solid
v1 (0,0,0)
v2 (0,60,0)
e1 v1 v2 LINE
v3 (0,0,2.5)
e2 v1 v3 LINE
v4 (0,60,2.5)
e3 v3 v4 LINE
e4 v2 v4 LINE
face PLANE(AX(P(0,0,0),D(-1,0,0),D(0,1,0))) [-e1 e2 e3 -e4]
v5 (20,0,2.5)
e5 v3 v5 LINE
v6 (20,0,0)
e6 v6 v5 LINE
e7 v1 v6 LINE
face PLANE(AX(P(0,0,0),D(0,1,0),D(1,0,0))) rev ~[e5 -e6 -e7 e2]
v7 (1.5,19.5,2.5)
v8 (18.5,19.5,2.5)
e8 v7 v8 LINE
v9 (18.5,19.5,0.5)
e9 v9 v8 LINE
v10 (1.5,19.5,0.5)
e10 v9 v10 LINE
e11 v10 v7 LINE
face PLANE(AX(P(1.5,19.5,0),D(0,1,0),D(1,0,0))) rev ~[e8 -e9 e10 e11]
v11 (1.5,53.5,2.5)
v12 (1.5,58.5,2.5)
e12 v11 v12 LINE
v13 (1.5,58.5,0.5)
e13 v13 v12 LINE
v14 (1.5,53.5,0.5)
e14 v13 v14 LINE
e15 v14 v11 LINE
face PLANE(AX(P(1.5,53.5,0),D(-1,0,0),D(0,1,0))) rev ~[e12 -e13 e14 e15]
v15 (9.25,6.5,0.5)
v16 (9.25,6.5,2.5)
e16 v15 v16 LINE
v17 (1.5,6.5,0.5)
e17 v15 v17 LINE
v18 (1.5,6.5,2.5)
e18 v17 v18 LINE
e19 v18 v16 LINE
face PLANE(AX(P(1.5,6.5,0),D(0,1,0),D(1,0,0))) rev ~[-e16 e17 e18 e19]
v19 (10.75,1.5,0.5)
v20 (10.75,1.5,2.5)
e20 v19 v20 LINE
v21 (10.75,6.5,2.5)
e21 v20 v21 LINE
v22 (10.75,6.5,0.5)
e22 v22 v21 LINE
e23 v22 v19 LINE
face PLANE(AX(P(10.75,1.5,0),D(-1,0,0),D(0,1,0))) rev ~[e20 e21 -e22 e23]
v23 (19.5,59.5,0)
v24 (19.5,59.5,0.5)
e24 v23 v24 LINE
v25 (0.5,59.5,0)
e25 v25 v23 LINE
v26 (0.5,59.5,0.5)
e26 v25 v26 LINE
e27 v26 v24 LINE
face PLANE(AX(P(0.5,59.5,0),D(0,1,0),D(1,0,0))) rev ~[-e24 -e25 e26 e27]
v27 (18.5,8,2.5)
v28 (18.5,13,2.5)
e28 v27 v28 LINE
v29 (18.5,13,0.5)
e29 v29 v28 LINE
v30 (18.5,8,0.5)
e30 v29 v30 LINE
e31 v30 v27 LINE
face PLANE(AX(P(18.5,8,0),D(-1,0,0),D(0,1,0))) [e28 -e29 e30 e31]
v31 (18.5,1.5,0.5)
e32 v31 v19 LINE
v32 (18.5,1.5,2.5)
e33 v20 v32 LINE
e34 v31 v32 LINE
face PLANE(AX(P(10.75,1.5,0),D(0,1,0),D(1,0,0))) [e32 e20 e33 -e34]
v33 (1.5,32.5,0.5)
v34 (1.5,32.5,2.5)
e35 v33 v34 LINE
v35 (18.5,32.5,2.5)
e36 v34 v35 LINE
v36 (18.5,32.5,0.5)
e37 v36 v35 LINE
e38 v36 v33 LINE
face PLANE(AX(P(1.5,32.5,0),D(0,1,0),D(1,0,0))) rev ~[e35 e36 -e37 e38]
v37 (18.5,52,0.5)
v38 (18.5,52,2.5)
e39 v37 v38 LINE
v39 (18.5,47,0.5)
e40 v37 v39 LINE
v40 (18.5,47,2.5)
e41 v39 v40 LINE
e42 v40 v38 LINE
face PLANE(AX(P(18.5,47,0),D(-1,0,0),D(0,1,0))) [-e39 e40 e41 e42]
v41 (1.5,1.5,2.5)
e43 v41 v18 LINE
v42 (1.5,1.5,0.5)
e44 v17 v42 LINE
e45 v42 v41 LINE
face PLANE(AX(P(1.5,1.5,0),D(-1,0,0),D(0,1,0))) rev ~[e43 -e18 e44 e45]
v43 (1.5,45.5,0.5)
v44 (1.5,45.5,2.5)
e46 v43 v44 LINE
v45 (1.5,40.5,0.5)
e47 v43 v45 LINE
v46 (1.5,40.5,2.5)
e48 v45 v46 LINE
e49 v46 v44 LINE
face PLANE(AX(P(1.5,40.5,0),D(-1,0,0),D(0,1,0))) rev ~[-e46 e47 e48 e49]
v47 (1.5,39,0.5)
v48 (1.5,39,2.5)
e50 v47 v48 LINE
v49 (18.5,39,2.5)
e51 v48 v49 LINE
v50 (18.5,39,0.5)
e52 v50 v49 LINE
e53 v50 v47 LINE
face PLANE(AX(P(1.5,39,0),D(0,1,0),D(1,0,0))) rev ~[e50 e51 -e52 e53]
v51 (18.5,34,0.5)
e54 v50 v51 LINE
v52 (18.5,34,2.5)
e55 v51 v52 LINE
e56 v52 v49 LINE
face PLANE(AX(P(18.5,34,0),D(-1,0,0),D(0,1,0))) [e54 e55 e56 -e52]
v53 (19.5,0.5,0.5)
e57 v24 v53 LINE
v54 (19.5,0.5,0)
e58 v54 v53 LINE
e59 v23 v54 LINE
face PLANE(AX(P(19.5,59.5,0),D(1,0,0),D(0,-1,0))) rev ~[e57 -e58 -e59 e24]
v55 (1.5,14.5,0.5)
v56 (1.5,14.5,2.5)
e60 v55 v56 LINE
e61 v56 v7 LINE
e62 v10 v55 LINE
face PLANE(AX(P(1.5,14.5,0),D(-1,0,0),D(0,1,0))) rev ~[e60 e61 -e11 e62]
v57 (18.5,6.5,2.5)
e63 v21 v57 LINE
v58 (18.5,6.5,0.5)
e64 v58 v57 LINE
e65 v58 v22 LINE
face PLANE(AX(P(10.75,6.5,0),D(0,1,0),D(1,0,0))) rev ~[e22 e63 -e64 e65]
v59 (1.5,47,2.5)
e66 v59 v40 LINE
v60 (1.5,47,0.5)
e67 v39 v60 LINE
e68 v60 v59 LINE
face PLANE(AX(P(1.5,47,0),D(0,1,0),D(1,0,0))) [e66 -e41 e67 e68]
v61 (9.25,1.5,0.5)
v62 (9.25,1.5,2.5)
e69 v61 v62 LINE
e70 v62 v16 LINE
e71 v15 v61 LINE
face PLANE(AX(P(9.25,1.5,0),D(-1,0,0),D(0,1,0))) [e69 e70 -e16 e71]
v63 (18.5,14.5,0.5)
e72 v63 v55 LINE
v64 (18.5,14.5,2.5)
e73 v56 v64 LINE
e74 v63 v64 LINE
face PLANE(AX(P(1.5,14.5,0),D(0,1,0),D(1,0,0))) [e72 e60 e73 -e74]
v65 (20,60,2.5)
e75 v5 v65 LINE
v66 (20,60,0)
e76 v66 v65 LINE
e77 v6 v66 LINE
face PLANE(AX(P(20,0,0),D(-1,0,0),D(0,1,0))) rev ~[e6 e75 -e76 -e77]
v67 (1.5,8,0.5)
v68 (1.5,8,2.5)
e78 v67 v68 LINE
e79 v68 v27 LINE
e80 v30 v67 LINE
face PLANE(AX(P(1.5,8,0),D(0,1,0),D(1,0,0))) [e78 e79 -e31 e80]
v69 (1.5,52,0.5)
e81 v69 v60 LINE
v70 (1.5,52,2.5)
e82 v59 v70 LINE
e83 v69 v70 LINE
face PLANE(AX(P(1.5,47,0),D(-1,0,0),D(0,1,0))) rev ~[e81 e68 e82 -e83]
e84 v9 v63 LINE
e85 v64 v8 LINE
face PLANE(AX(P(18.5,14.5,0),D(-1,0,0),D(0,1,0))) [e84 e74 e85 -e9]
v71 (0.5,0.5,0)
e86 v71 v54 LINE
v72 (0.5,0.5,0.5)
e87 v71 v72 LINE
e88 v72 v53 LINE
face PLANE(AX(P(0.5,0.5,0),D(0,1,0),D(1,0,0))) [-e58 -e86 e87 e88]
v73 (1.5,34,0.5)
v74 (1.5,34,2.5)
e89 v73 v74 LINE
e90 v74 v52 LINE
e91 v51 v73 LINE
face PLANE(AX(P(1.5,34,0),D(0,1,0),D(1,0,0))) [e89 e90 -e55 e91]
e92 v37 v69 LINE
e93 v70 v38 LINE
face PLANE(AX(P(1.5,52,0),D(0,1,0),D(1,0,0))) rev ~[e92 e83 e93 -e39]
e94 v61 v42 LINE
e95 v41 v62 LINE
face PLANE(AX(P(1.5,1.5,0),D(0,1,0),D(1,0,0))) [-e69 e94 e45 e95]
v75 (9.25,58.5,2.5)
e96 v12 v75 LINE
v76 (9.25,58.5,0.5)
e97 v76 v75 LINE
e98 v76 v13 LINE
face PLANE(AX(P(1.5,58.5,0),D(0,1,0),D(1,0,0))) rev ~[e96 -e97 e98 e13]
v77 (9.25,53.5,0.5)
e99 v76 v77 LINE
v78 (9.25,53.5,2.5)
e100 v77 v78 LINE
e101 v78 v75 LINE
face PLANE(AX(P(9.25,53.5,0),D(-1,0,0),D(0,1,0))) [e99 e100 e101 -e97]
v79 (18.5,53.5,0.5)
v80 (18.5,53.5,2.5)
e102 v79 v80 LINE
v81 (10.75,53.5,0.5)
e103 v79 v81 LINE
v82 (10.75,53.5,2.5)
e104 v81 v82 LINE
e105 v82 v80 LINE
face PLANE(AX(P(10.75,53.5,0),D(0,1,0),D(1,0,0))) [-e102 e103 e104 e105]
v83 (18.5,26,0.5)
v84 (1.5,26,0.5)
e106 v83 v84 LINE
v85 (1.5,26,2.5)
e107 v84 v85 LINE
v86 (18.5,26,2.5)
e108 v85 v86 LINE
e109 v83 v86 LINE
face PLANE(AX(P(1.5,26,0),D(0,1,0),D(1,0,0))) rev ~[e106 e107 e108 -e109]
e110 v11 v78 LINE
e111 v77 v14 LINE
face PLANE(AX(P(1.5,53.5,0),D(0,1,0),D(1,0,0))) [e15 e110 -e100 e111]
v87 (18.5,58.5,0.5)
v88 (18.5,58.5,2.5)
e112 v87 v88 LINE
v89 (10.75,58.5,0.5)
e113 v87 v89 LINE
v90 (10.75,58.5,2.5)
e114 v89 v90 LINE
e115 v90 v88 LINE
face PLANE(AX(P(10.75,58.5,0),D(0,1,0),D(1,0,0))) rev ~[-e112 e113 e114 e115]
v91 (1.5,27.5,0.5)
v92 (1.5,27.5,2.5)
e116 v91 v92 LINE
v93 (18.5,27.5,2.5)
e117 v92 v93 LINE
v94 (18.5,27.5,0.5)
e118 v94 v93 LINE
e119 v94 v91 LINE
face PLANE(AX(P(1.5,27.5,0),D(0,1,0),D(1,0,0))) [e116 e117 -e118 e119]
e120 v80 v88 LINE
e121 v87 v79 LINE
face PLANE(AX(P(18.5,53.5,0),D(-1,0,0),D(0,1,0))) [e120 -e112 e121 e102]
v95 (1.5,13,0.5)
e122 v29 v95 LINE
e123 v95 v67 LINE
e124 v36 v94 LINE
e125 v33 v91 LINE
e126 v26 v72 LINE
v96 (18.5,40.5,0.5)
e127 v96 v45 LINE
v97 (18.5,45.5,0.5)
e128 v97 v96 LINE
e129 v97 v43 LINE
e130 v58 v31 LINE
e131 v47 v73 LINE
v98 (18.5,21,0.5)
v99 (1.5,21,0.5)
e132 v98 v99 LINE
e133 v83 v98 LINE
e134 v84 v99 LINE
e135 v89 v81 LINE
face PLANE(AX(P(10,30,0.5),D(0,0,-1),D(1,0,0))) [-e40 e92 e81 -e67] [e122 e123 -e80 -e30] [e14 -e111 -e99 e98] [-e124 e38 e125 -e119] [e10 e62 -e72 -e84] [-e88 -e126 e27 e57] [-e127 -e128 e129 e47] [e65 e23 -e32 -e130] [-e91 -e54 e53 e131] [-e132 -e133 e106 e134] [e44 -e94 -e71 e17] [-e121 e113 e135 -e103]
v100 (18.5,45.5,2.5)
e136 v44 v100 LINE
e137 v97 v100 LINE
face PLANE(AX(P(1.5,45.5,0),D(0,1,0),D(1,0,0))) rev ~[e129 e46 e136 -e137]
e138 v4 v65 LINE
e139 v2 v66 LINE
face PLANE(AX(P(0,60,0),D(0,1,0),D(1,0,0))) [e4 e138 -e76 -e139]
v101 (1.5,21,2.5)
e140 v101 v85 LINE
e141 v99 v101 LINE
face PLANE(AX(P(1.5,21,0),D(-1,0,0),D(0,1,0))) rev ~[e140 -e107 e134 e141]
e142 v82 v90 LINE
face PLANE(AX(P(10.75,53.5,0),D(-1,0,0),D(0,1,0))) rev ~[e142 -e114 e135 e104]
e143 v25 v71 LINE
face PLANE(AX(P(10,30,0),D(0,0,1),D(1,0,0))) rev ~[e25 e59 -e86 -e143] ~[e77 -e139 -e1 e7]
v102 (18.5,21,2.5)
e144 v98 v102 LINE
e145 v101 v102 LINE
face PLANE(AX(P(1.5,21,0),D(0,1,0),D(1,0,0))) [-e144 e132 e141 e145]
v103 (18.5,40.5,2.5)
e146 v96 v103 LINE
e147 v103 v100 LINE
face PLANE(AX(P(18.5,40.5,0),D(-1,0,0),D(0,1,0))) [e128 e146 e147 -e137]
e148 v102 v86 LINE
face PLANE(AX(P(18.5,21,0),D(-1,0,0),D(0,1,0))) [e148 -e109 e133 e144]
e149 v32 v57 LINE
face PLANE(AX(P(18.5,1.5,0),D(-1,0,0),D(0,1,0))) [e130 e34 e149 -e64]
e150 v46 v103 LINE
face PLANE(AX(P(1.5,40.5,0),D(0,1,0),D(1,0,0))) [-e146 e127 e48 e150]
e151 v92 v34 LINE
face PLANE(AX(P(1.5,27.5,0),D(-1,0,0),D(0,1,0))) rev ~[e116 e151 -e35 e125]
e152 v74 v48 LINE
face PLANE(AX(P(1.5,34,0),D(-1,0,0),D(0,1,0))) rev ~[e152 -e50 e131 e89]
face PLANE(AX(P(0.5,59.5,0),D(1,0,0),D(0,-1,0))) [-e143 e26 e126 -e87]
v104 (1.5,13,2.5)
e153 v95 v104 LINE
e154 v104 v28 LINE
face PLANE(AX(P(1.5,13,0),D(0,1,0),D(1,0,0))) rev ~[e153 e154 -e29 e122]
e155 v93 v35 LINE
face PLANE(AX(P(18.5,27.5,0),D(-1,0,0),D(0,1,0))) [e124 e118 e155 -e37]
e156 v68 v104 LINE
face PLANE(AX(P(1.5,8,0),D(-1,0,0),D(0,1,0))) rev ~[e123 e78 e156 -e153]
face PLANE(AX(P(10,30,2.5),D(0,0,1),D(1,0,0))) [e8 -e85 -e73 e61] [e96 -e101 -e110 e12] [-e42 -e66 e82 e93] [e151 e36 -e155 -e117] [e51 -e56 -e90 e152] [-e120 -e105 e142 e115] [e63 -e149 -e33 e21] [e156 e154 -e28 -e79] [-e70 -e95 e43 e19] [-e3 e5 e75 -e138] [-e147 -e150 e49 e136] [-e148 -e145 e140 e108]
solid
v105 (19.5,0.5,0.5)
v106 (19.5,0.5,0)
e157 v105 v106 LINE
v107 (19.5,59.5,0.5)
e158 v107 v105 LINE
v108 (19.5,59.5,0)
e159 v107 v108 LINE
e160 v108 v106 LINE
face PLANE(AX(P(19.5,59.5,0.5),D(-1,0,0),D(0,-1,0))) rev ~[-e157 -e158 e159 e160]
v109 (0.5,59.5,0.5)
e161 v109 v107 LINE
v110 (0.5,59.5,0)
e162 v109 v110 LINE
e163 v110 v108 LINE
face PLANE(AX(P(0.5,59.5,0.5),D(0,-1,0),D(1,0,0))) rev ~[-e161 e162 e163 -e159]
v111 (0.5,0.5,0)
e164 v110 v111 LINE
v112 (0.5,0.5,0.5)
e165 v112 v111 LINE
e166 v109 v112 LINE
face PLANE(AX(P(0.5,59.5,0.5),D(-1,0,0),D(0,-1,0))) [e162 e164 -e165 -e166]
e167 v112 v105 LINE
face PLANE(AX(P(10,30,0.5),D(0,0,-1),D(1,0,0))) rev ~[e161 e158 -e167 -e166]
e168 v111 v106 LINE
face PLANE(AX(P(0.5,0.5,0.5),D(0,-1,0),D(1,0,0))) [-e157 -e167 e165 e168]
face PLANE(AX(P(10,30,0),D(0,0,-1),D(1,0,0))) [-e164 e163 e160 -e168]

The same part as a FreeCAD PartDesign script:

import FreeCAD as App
import Part
import Sketcher
from FreeCAD import Vector
Q = App.Units.Quantity


def add_polygon(sketch, points):
    """Adds a closed chain of lines whose ends are joined by coincident constraints."""
    first, n = sketch.GeometryCount, len(points)
    for a, b in zip(points, points[1:] + points[:1]):
        sketch.addGeometry(Part.LineSegment(App.Vector(*a, 0), App.Vector(*b, 0)), False)
    for i in range(n):
        sketch.addConstraint(Sketcher.Constraint("Coincident", first + i, 2, first + (i + 1) % n, 1))

doc = App.newDocument("Part")
body = doc.addObject("PartDesign::Body", "Body")

# Sketch on XY plane
sketch1 = body.newObject("Sketcher::SketchObject", "Sketch")
sketch1.AttachmentSupport = (doc.getObject("XY_Plane"), [""])
sketch1.MapMode = "FlatFace"
add_polygon(sketch1, [(0, 60), (0, 0), (20, 0), (20, 60)])  # lines 0-3
add_polygon(sketch1, [(9, 2), (2, 2), (2, 6), (9, 6)])  # lines 4-7
add_polygon(sketch1, [(18, 8), (2, 8), (2, 13), (18, 13)])  # lines 8-11
add_polygon(sketch1, [(18, 2), (11, 2), (11, 6), (18, 6)])  # lines 12-15
add_polygon(sketch1, [(18, 14), (2, 14), (2, 20), (18, 20)])  # lines 16-19
add_polygon(sketch1, [(18, 21), (2, 21), (2, 26), (18, 26)])  # lines 20-23
add_polygon(sketch1, [(9, 54), (2, 54), (2, 58), (9, 58)])  # lines 24-27
add_polygon(sketch1, [(18, 28), (2, 28), (2, 32), (18, 32)])  # lines 28-31
add_polygon(sketch1, [(18, 34), (2, 34), (2, 39), (18, 39)])  # lines 32-35
add_polygon(sketch1, [(18, 40), (2, 40), (2, 46), (18, 46)])  # lines 36-39
add_polygon(sketch1, [(18, 47), (2, 47), (2, 52), (18, 52)])  # lines 40-43
add_polygon(sketch1, [(18, 54), (11, 54), (11, 58), (18, 58)])  # lines 44-47
sketch1.addConstraint([
    Sketcher.Constraint("Vertical", 0),
    Sketcher.Constraint("Horizontal", 1),
    Sketcher.Constraint("Vertical", 2),
    Sketcher.Constraint("Horizontal", 3),
    Sketcher.Constraint("Horizontal", 4),
    Sketcher.Constraint("Vertical", 5),
    Sketcher.Constraint("Horizontal", 6),
    Sketcher.Constraint("Vertical", 7),
    Sketcher.Constraint("Horizontal", 8),
    Sketcher.Constraint("Vertical", 9),
    Sketcher.Constraint("Horizontal", 10),
    Sketcher.Constraint("Vertical", 11),
    Sketcher.Constraint("Horizontal", 12),
    Sketcher.Constraint("Vertical", 13),
    Sketcher.Constraint("Horizontal", 14),
    Sketcher.Constraint("Vertical", 15),
    Sketcher.Constraint("Horizontal", 16),
    Sketcher.Constraint("Vertical", 17),
    Sketcher.Constraint("Horizontal", 18),
    Sketcher.Constraint("Vertical", 19),
    Sketcher.Constraint("Horizontal", 20),
    Sketcher.Constraint("Vertical", 21),
    Sketcher.Constraint("Horizontal", 22),
    Sketcher.Constraint("Vertical", 23),
    Sketcher.Constraint("Horizontal", 24),
    Sketcher.Constraint("Vertical", 25),
    Sketcher.Constraint("Horizontal", 26),
    Sketcher.Constraint("Vertical", 27),
    Sketcher.Constraint("Horizontal", 28),
    Sketcher.Constraint("Vertical", 29),
    Sketcher.Constraint("Horizontal", 30),
    Sketcher.Constraint("Vertical", 31),
    Sketcher.Constraint("Horizontal", 32),
    Sketcher.Constraint("Vertical", 33),
    Sketcher.Constraint("Horizontal", 34),
    Sketcher.Constraint("Vertical", 35),
    Sketcher.Constraint("Horizontal", 36),
    Sketcher.Constraint("Vertical", 37),
    Sketcher.Constraint("Horizontal", 38),
    Sketcher.Constraint("Vertical", 39),
    Sketcher.Constraint("Horizontal", 40),
    Sketcher.Constraint("Vertical", 41),
    Sketcher.Constraint("Horizontal", 42),
    Sketcher.Constraint("Vertical", 43),
    Sketcher.Constraint("Horizontal", 44),
    Sketcher.Constraint("Vertical", 45),
    Sketcher.Constraint("Horizontal", 46),
    Sketcher.Constraint("Vertical", 47),
    Sketcher.Constraint("Coincident", 0, 2, -1, 1),
    Sketcher.Constraint("Horizontal", 7, 2, 12, 2),
    Sketcher.Constraint("Horizontal", 6, 2, 13, 2),
    Sketcher.Constraint("Horizontal", 27, 2, 44, 2),
    Sketcher.Constraint("Horizontal", 26, 2, 45, 2),
    Sketcher.Constraint("Vertical", 5, 2, 8, 2),
    Sketcher.Constraint("Vertical", 11, 2, 14, 2),
    Sketcher.Constraint("Vertical", 9, 2, 16, 2),
    Sketcher.Constraint("Vertical", 15, 2, 18, 2),
    Sketcher.Constraint("Vertical", 17, 2, 20, 2),
    Sketcher.Constraint("Vertical", 19, 2, 22, 2),
    Sketcher.Constraint("Vertical", 21, 2, 24, 2),
    Sketcher.Constraint("Vertical", 7, 2, 26, 2),
    Sketcher.Constraint("Vertical", 25, 2, 28, 2),
    Sketcher.Constraint("Vertical", 23, 2, 30, 2),
    Sketcher.Constraint("Vertical", 29, 2, 32, 2),
    Sketcher.Constraint("Vertical", 31, 2, 34, 2),
    Sketcher.Constraint("Vertical", 33, 2, 36, 2),
    Sketcher.Constraint("Vertical", 35, 2, 38, 2),
    Sketcher.Constraint("Vertical", 37, 2, 40, 2),
    Sketcher.Constraint("Vertical", 39, 2, 42, 2),
    Sketcher.Constraint("Vertical", 13, 2, 44, 2),
    Sketcher.Constraint("Vertical", 43, 2, 46, 2),
    Sketcher.Constraint("Equal", 6, 12),
    Sketcher.Constraint("Equal", 7, 9),
    Sketcher.Constraint("Equal", 15, 17),
    Sketcher.Constraint("Equal", 19, 21),
    Sketcher.Constraint("Equal", 23, 25),
    Sketcher.Constraint("Equal", 27, 29),
    Sketcher.Constraint("Equal", 31, 33),
    Sketcher.Constraint("Equal", 35, 37),
    Sketcher.Constraint("Equal", 39, 41),
    Sketcher.Constraint("DistanceX", 1, 1, 1, 2, Q("20 mm")),
    Sketcher.Constraint("DistanceX", 8, 2, 8, 1, Q("17 mm")),
    Sketcher.Constraint("DistanceY", 0, 2, 0, 1, Q("60 mm")),
    Sketcher.Constraint("DistanceY", 5, 1, 5, 2, Q("5 mm")),
    Sketcher.Constraint("DistanceY", -1, 1, 8, 2, Q("8 mm")),
    Sketcher.Constraint("DistanceY", -1, 1, 20, 2, Q("21 mm")),
    Sketcher.Constraint("DistanceY", -1, 1, 32, 2, Q("34 mm")),
    Sketcher.Constraint("DistanceY", -1, 1, 40, 2, Q("47 mm")),
    Sketcher.Constraint("DistanceY", 5, 2, 16, 2, Q("8 mm")),
    Sketcher.Constraint("DistanceY", 17, 2, 28, 2, Q("8 mm")),
    Sketcher.Constraint("DistanceY", 29, 2, 36, 2, Q("8 mm")),
    Sketcher.Constraint("DistanceY", 36, 2, 24, 2, Q("13 mm")),
    Sketcher.Constraint("DistanceX", 4, 2, 4, 1, Q("7.75 mm")),
    Sketcher.Constraint("DistanceX", -1, 1, 4, 2, Q("1.5 mm")),
    Sketcher.Constraint("DistanceY", -1, 1, 4, 2, Q("1.5 mm")),
])
pad1 = body.newObject("PartDesign::Pad", "Pad")
pad1.Profile = sketch1
pad1.Length = 2.5

# Sketch on XY plane
sketch2 = body.newObject("Sketcher::SketchObject", "Sketch001")
sketch2.AttachmentSupport = (doc.getObject("XY_Plane"), [""])
sketch2.MapMode = "FlatFace"
add_polygon(sketch2, [(0, 0), (0, 60), (20, 60), (20, 0)])  # lines 0-3
sketch2.addConstraint([
    Sketcher.Constraint("Vertical", 0),
    Sketcher.Constraint("Horizontal", 1),
    Sketcher.Constraint("Vertical", 2),
    Sketcher.Constraint("Horizontal", 3),
    Sketcher.Constraint("DistanceX", 1, 1, 1, 2, Q("19 mm")),
    Sketcher.Constraint("DistanceY", 0, 1, 0, 2, Q("59 mm")),
    Sketcher.Constraint("DistanceX", -1, 1, 0, 2, Q("0.5 mm")),
    Sketcher.Constraint("DistanceY", -1, 1, 0, 2, Q("59.5 mm")),
])
pocket1 = body.newObject("PartDesign::Pocket", "Pocket")
pocket1.Profile = sketch2
pocket1.Length = 0.5
pocket1.Reversed = True
body2 = doc.addObject("PartDesign::Body", "Body001")

# Sketch on XY plane
sketch3 = body2.newObject("Sketcher::SketchObject", "Sketch002")
sketch3.AttachmentSupport = (doc.getObject("XY_Plane001"), [""])
sketch3.MapMode = "FlatFace"
sketch3.AttachmentOffset = App.Placement(Vector(0, 0, 0.5), App.Rotation())
add_polygon(sketch3, [(0, 0), (0, 60), (20, 60), (20, 0)])  # lines 0-3
sketch3.addConstraint([
    Sketcher.Constraint("Vertical", 0),
    Sketcher.Constraint("Horizontal", 1),
    Sketcher.Constraint("Vertical", 2),
    Sketcher.Constraint("Horizontal", 3),
    Sketcher.Constraint("DistanceX", 1, 1, 1, 2, Q("19 mm")),
    Sketcher.Constraint("DistanceY", 0, 1, 0, 2, Q("59 mm")),
    Sketcher.Constraint("DistanceX", -1, 1, 0, 2, Q("0.5 mm")),
    Sketcher.Constraint("DistanceY", -1, 1, 0, 2, Q("59.5 mm")),
])
pad2 = body2.newObject("PartDesign::Pad", "Pad001")
pad2.Profile = sketch3
pad2.Length = 0.5
pad2.Reversed = True

doc.recompute()
